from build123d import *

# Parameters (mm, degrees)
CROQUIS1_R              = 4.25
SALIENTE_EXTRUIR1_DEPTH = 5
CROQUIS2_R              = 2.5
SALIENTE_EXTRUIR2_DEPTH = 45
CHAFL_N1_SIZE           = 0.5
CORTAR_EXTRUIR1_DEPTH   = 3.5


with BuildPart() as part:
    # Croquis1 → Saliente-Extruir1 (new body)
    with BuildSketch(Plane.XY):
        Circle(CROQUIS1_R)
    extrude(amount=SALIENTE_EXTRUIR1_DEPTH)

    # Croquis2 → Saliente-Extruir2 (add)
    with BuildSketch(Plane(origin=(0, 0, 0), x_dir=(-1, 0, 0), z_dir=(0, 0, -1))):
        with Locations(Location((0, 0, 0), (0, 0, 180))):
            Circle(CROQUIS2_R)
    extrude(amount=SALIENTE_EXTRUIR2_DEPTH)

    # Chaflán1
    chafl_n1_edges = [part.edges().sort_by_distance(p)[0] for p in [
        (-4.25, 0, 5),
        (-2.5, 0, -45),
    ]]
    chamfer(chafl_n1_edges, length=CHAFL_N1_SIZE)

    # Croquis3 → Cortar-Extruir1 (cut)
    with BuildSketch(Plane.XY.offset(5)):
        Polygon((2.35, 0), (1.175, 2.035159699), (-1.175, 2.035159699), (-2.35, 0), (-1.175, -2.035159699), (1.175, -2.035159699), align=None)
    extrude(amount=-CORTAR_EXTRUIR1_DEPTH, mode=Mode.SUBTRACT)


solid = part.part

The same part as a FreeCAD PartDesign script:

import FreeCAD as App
import Part
import Sketcher
Q = App.Units.Quantity


def edges_at(feature, points):
    """Names of the edges that pass closest to the given points."""
    edges = feature.Shape.Edges
    near = lambda p: min(range(len(edges)), key=lambda i: edges[i].distToShape(Part.Vertex(*p))[0])
    return sorted({f"Edge{near(p) + 1}" for p in points})

doc = App.newDocument("Part")
body = doc.addObject("PartDesign::Body", "Body")

sketch1 = body.newObject("Sketcher::SketchObject", "Sketch")
sketch1.AttachmentSupport = (doc.getObject("XY_Plane"), [""])
sketch1.MapMode = "FlatFace"
sketch1.addGeometry(Part.Circle(App.Vector(0, 0, 0), App.Vector(0, 0, 1), 4.2), False)
sketch1.addConstraint([
    Sketcher.Constraint("Coincident", 0, 3, -1, 1),
    Sketcher.Constraint("Diameter", 0, 8.5),
])
pad1 = body.newObject("PartDesign::Pad", "Pad")
pad1.Profile = sketch1
pad1.Length = 5

sketch2 = body.newObject("Sketcher::SketchObject", "Sketch001")
sketch2.AttachmentSupport = (doc.getObject("XY_Plane"), [""])
sketch2.MapMode = "FlatFace"
sketch2.addGeometry(Part.Circle(App.Vector(0, 0, 0), App.Vector(0, 0, 1), 2.5), False)
sketch2.addConstraint([
    Sketcher.Constraint("Coincident", 0, 3, -1, 1),
    Sketcher.Constraint("Diameter", 0, 5.0),
])
pad2 = body.newObject("PartDesign::Pad", "Pad001")
pad2.Profile = sketch2
pad2.Length = 45
pad2.Reversed = True
doc.recompute()

chamfer = body.newObject("PartDesign::Chamfer", "Chamfer")
chamfer.Base = (pad2, edges_at(pad2, [(-4.25, 0, 5), (-2.5, 0, -45)]))
chamfer.Size = 0.5

sketch3 = body.newObject("Sketcher::SketchObject", "Sketch002")
sketch3.AttachmentSupport = (doc.getObject("XY_Plane"), [""])
sketch3.MapMode = "FlatFace"
sketch3.AttachmentOffset = App.Placement(App.Vector(0, 0, 5), App.Rotation())
sketch3.addGeometry([
    Part.LineSegment(App.Vector(2.4, 0, 0), App.Vector(1.2, 2, 0)),
    Part.LineSegment(App.Vector(1.2, 2, 0), App.Vector(-1.2, 2, 0)),
    Part.LineSegment(App.Vector(-1.2, 2, 0), App.Vector(-2.4, 0, 0)),
    Part.LineSegment(App.Vector(-2.4, 0, 0), App.Vector(-1.2, -2, 0)),
    Part.LineSegment(App.Vector(-1.2, -2, 0), App.Vector(1.2, -2, 0)),
    Part.LineSegment(App.Vector(1.2, -2, 0), App.Vector(2.4, 0, 0)),
], False)
sketch3.addConstraint([
    Sketcher.Constraint("Coincident", 0, 2, 1, 1),
    Sketcher.Constraint("Coincident", 1, 2, 2, 1),
    Sketcher.Constraint("Coincident", 2, 2, 3, 1),
    Sketcher.Constraint("Coincident", 3, 2, 4, 1),
    Sketcher.Constraint("Coincident", 4, 2, 5, 1),
    Sketcher.Constraint("Coincident", 5, 2, 0, 1),
    Sketcher.Constraint("Horizontal", 1),
    Sketcher.Constraint("Horizontal", 4),
    Sketcher.Constraint("Symmetric", 0, 2, 3, 2, -1, 1),
    Sketcher.Constraint("Symmetric", 2, 2, 5, 2, -1, 1),
    Sketcher.Constraint("PointOnObject", 2, 2, -1),
    Sketcher.Constraint("Parallel", 2, 5),
    Sketcher.Constraint("Vertical", 1, 2, 3, 2),
    Sketcher.Constraint("Angle", 0, Q("120 deg")),
    Sketcher.Constraint("DistanceX", 1, 2, 1, 1, 2.35),
    Sketcher.Constraint("DistanceX", 2, 2, 5, 2, 4.7),
])
pocket1 = body.newObject("PartDesign::Pocket", "Pocket")
pocket1.Profile = sketch3
pocket1.Length = 3.5

doc.recompute()
